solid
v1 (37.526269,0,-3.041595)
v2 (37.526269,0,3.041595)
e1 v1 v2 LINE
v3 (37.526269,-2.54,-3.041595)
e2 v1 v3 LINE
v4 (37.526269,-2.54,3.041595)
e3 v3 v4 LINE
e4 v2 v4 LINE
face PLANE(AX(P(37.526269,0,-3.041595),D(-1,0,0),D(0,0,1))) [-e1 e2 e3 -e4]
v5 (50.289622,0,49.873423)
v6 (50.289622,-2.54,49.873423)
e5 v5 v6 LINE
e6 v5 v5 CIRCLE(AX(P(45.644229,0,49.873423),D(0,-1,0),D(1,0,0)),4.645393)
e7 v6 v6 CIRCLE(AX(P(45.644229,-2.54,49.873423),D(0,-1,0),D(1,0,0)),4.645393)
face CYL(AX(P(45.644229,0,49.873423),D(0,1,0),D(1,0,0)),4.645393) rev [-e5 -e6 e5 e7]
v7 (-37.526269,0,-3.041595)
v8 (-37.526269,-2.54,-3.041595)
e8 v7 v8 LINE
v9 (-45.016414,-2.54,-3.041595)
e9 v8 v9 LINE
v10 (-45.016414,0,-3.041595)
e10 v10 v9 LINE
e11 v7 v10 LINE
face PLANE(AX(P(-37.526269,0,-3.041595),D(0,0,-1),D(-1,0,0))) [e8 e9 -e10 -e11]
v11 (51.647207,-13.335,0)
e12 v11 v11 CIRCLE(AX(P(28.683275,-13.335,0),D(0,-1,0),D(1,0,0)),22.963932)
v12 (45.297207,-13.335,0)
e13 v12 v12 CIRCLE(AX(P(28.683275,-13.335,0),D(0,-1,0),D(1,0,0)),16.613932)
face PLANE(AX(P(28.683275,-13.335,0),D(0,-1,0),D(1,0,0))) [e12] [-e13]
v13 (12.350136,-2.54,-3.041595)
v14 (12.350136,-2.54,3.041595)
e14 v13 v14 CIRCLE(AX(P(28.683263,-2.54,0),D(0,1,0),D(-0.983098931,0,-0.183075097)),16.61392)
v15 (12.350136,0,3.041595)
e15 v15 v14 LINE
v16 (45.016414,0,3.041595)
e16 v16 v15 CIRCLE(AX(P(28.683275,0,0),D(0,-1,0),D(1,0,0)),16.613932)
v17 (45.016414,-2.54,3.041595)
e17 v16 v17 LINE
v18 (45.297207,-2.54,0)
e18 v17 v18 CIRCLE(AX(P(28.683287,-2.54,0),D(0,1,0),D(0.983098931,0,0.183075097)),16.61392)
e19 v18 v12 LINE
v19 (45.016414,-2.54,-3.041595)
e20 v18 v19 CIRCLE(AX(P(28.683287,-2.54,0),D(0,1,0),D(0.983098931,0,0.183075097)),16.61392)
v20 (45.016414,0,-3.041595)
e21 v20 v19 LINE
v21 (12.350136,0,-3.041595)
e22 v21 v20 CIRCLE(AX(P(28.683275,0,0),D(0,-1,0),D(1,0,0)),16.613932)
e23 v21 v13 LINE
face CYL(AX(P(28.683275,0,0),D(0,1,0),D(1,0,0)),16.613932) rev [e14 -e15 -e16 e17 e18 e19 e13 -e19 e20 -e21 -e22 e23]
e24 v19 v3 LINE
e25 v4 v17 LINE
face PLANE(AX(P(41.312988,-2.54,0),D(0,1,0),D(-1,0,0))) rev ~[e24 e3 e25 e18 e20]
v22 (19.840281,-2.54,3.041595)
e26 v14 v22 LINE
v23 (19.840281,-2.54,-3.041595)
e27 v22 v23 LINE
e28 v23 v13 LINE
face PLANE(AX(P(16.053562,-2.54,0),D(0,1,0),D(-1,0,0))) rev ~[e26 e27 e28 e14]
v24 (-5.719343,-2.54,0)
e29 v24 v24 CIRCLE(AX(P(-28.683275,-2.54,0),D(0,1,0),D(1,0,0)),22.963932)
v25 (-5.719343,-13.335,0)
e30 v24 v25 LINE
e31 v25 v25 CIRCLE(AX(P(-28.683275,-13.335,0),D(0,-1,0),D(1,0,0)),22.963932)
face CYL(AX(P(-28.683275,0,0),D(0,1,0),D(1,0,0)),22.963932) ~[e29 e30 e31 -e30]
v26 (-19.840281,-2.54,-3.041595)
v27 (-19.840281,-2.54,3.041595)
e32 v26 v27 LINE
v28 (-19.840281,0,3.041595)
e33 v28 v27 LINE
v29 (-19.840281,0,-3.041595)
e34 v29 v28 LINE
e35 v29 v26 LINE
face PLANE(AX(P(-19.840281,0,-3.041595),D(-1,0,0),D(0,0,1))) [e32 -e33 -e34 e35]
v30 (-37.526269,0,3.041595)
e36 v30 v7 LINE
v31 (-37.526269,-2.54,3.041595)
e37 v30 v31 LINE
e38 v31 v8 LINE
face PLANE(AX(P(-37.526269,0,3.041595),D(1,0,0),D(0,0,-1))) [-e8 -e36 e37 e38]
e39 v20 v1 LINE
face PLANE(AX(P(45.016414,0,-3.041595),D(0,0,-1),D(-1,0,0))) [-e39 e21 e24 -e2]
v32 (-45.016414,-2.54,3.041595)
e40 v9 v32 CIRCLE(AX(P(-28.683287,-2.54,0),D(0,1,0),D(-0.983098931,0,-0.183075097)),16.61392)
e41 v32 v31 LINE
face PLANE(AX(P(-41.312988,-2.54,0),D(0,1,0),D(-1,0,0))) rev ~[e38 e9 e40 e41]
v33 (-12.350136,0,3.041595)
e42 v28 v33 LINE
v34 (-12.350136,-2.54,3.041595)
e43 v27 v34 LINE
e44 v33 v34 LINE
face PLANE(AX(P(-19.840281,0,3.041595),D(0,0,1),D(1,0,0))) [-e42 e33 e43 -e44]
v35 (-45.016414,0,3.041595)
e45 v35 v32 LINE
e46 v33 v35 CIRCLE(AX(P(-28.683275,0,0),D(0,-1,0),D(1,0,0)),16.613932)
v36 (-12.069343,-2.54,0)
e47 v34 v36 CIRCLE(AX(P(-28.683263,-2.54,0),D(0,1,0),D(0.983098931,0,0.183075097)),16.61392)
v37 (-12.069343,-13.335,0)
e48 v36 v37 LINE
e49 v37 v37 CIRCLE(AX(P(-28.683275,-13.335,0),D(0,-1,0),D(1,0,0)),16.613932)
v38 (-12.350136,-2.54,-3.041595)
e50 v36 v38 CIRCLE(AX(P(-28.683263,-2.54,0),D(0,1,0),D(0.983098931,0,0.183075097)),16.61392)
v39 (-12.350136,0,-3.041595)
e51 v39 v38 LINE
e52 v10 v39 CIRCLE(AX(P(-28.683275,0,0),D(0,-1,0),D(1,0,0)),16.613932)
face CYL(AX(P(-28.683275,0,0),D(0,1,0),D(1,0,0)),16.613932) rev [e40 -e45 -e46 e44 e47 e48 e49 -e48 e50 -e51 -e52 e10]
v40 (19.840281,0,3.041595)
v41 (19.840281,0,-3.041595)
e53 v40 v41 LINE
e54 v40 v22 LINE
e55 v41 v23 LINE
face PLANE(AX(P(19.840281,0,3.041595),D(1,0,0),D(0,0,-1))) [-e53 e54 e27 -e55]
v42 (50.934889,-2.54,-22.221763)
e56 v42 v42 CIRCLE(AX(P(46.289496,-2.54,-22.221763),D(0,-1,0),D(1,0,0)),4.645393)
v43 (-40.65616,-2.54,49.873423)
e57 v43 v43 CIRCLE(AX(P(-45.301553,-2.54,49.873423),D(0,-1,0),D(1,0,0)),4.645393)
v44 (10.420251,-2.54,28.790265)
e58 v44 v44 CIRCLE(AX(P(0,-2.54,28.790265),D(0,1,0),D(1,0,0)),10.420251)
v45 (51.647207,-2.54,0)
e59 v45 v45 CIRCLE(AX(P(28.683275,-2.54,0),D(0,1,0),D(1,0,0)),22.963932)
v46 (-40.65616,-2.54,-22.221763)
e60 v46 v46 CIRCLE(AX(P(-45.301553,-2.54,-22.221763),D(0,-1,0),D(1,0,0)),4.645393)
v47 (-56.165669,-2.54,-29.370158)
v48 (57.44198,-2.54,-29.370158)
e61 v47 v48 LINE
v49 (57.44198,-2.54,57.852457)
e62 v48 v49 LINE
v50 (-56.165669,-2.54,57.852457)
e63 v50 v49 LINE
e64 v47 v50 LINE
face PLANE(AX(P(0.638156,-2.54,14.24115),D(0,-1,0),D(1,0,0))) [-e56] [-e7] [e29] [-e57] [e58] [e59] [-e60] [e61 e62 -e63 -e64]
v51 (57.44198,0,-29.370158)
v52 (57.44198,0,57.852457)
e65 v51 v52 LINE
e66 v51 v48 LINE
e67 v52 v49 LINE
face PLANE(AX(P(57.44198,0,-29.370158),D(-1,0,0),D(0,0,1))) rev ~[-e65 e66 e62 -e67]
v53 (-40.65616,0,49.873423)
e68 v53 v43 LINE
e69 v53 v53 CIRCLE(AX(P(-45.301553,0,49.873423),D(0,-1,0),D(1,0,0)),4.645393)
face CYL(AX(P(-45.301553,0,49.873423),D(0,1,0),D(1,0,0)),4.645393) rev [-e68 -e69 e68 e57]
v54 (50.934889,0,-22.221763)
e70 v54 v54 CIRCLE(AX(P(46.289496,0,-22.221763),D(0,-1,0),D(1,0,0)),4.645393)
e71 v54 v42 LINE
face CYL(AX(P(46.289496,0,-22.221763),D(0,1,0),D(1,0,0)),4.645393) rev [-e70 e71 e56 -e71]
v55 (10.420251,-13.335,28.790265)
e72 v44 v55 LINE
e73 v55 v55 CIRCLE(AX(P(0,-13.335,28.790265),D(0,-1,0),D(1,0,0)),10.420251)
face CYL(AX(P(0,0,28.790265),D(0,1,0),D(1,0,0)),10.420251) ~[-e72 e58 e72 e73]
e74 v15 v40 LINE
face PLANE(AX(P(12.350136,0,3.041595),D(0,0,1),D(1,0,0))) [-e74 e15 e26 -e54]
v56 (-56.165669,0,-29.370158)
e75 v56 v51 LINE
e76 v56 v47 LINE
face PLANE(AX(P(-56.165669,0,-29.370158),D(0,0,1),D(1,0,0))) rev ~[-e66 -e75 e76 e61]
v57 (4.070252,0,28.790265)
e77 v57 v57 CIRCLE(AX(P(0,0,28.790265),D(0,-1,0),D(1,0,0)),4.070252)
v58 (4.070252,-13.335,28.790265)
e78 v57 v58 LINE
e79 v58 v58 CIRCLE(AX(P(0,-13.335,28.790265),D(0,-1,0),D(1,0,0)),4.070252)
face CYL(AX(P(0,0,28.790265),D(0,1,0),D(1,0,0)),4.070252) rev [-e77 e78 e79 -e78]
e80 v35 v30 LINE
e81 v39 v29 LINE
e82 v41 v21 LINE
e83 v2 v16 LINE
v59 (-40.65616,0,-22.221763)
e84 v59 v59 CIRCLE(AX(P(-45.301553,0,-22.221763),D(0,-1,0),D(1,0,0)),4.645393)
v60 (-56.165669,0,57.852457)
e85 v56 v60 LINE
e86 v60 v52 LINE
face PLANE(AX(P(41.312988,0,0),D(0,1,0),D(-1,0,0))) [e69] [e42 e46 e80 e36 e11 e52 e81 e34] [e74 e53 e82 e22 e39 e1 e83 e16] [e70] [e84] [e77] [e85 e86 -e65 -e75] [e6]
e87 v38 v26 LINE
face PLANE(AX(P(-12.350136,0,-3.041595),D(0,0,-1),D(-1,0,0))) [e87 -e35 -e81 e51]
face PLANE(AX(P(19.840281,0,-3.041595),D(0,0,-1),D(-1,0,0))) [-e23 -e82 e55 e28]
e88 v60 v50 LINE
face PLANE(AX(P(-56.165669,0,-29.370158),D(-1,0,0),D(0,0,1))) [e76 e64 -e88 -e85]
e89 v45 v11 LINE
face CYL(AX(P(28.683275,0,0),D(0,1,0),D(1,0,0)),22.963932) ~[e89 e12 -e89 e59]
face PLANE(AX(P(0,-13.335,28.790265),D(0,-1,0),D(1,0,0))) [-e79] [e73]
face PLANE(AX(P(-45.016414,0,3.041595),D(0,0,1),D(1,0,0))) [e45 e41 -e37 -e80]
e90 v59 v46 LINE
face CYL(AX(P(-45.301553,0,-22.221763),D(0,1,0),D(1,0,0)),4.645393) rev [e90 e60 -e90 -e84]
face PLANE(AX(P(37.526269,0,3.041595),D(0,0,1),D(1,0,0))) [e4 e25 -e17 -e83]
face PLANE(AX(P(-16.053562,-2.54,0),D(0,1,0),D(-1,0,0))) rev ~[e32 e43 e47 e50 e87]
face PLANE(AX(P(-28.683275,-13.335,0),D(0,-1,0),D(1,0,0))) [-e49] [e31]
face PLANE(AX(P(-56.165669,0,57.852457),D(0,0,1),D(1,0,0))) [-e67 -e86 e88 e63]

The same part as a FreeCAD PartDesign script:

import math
import FreeCAD as App
import Part
import Sketcher
from FreeCAD import Vector
Q = App.Units.Quantity


def add_polygon(sketch, points):
    """Adds a closed chain of lines whose ends are joined by coincident constraints."""
    first, n = sketch.GeometryCount, len(points)
    for a, b in zip(points, points[1:] + points[:1]):
        sketch.addGeometry(Part.LineSegment(App.Vector(*a, 0), App.Vector(*b, 0)), False)
    for i in range(n):
        sketch.addConstraint(Sketcher.Constraint("Coincident", first + i, 2, first + (i + 1) % n, 1))

doc = App.newDocument("Part")
params = doc.addObject("Spreadsheet::Sheet", "Params")
for row, (alias, value) in enumerate([
    ("pad1_length", "0.1 in"),
    ("pad2_length", "0.525 in"),
    ("pad3_length", "0.1 in"),
], start=1):
    params.set(f"A{row}", alias)
    params.set(f"B{row}", "=" + value)
    params.setAlias(f"B{row}", alias)

body = doc.addObject("PartDesign::Body", "Body")

# Sketch on XZ plane
sketch1 = doc.addObject("Sketcher::SketchObject", "Sketch")
body.addObject(sketch1)
sketch1.AttachmentSupport = (doc.XZ_Plane, [""])
sketch1.MapMode = "FlatFace"
add_polygon(sketch1, [(-56.2, 57.9), (-56.2, -29.4), (57.4, -29.4), (57.4, 57.9)])  # lines 0-3
sketch1.addGeometry(Part.Circle(Vector(-45.3, -22.2, 0), Vector(0, 0, 1), 4.6), False)  # 4
sketch1.addGeometry(Part.Circle(Vector(-28.7, 0, 0), Vector(0, 0, 1), 16.6), False)  # 5
sketch1.addGeometry(Part.Circle(Vector(46.3, -22.2, 0), Vector(0, 0, 1), 4.6), False)  # 6
sketch1.addGeometry(Part.Circle(Vector(28.7, 0, 0), Vector(0, 0, 1), 16.6), False)  # 7
sketch1.addGeometry(Part.Circle(Vector(0, 28.8, 0), Vector(0, 0, 1), 4.1), False)  # 8
sketch1.addGeometry(Part.Circle(Vector(-45.3, 49.9, 0), Vector(0, 0, 1), 4.6), False)  # 9
sketch1.addGeometry(Part.Circle(Vector(45.6, 49.9, 0), Vector(0, 0, 1), 4.6), False)  # 10
sketch1.addConstraint(Sketcher.Constraint("Vertical", 0))
sketch1.addConstraint(Sketcher.Constraint("Horizontal", 1))
sketch1.addConstraint(Sketcher.Constraint("Vertical", 2))
sketch1.addConstraint(Sketcher.Constraint("Horizontal", 3))
sketch1.addConstraint(Sketcher.Constraint("Equal", 4, 6))
sketch1.addConstraint(Sketcher.Constraint("Equal", 5, 7))
sketch1.addConstraint(Sketcher.Constraint("Equal", 6, 9))
sketch1.addConstraint(Sketcher.Constraint("Equal", 9, 10))
sketch1.addConstraint(Sketcher.Constraint("Symmetric", 5, 3, 7, 3, -1, 1))
sketch1.addConstraint(Sketcher.Constraint("PointOnObject", 5, 3, -1))
sketch1.addConstraint(Sketcher.Constraint("PointOnObject", 8, 3, -2))
sketch1.addConstraint(Sketcher.Constraint("Horizontal", 4, 3, 6, 3))
sketch1.addConstraint(Sketcher.Constraint("Horizontal", 9, 3, 10, 3))
sketch1.addConstraint(Sketcher.Constraint("Vertical", 4, 3, 9, 3))
sketch1.addConstraint(Sketcher.Constraint("Diameter", 4, Q("9.290786 mm")))
sketch1.addConstraint(Sketcher.Constraint("Diameter", 5, Q("33.227864 mm")))
sketch1.addConstraint(Sketcher.Constraint("Diameter", 8, Q("8.140504 mm")))
sketch1.addConstraint(Sketcher.Constraint("DistanceX", 1, 1, 1, 2, Q("113.607649 mm")))
sketch1.addConstraint(Sketcher.Constraint("DistanceY", 0, 2, 0, 1, Q("87.222615 mm")))
sketch1.addConstraint(Sketcher.Constraint("DistanceX", -1, 1, 10, 3, Q("45.644229 mm")))
sketch1.addConstraint(Sketcher.Constraint("DistanceX", 0, 2, -1, 1, Q("56.165669 mm")))
sketch1.addConstraint(Sketcher.Constraint("DistanceX", 4, 3, 5, 3, Q("16.618278 mm")))
sketch1.addConstraint(Sketcher.Constraint("DistanceX", 5, 3, 6, 3, Q("74.972771 mm")))
sketch1.addConstraint(Sketcher.Constraint("DistanceX", 7, 3, 6, 3, Q("17.606221 mm")))
sketch1.addConstraint(Sketcher.Constraint("DistanceY", 8, 3, 9, 3, Q("21.083158 mm")))
sketch1.addConstraint(Sketcher.Constraint("DistanceY", 0, 2, 9, 3, Q("79.243581 mm")))
sketch1.addConstraint(Sketcher.Constraint("DistanceY", 6, 3, 2, 2, Q("80.07422 mm")))
sketch1.addConstraint(Sketcher.Constraint("DistanceY", 4, 3, -1, 1, Q("22.221763 mm")))
pad1 = doc.addObject("PartDesign::Pad", "Pad")
body.addObject(pad1)
pad1.Profile = sketch1
pad1.setExpression("Length", "Params.pad1_length")

# Sketch on XZ plane
sketch2 = doc.addObject("Sketcher::SketchObject", "Sketch001")
body.addObject(sketch2)
sketch2.AttachmentSupport = (doc.XZ_Plane, [""])
sketch2.MapMode = "FlatFace"
sketch2.addGeometry(Part.Circle(Vector(0, 28.8, 0), Vector(0, 0, 1), 10.4), False)
sketch2.addGeometry(Part.Circle(Vector(0, 28.8, 0), Vector(0, 0, 1), 4.1), False)
sketch2.addGeometry(Part.Circle(Vector(28.7, 0, 0), Vector(0, 0, 1), 23), False)
sketch2.addGeometry(Part.Circle(Vector(28.7, 0, 0), Vector(0, 0, 1), 16.6), False)
sketch2.addGeometry(Part.Circle(Vector(-28.7, 0, 0), Vector(0, 0, 1), 23), False)
sketch2.addGeometry(Part.Circle(Vector(-28.7, 0, 0), Vector(0, 0, 1), 16.6), False)
sketch2.addConstraint(Sketcher.Constraint("Coincident", 1, 3, 0, 3))
sketch2.addConstraint(Sketcher.Constraint("Coincident", 3, 3, 2, 3))
sketch2.addConstraint(Sketcher.Constraint("Coincident", 5, 3, 4, 3))
sketch2.addConstraint(Sketcher.Constraint("Equal", 2, 4))
sketch2.addConstraint(Sketcher.Constraint("Equal", 3, 5))
sketch2.addConstraint(Sketcher.Constraint("Symmetric", 2, 3, 4, 3, -1, 1))
sketch2.addConstraint(Sketcher.Constraint("PointOnObject", 0, 3, -2))
sketch2.addConstraint(Sketcher.Constraint("PointOnObject", 2, 3, -1))
sketch2.addConstraint(Sketcher.Constraint("Diameter", 0, Q("20.840502 mm")))
sketch2.addConstraint(Sketcher.Constraint("Diameter", 1, Q("8.140504 mm")))
sketch2.addConstraint(Sketcher.Constraint("Diameter", 2, Q("45.927864 mm")))
sketch2.addConstraint(Sketcher.Constraint("Diameter", 3, Q("33.227864 mm")))
sketch2.addConstraint(Sketcher.Constraint("DistanceX", 4, 3, 2, 3, Q("57.36655 mm")))
sketch2.addConstraint(Sketcher.Constraint("DistanceY", -1, 1, 0, 3, Q("28.790265 mm")))
pad2 = doc.addObject("PartDesign::Pad", "Pad001")
body.addObject(pad2)
pad2.Profile = sketch2
pad2.setExpression("Length", "Params.pad2_length")

# Sketch on XZ plane
sketch3 = doc.addObject("Sketcher::SketchObject", "Sketch002")
body.addObject(sketch3)
sketch3.AttachmentSupport = (doc.XZ_Plane, [""])
sketch3.MapMode = "FlatFace"
sketch3.addGeometry(Part.LineSegment(Vector(12, 3, 0), Vector(20, 3, 0)), False)
sketch3.addGeometry(Part.LineSegment(Vector(20, 3, 0), Vector(20, -3, 0)), False)
sketch3.addGeometry(Part.LineSegment(Vector(20, -3, 0), Vector(12, -3, 0)), False)
sketch3.addGeometry(Part.ArcOfCircle(Part.Circle(Vector(29, 0, 0), Vector(0, 0, 1), 17), math.radians(169), math.radians(191)), False)
sketch3.addGeometry(Part.LineSegment(Vector(38, -3, 0), Vector(38, 3, 0)), False)
sketch3.addGeometry(Part.LineSegment(Vector(38, 3, 0), Vector(45, 3, 0)), False)
sketch3.addGeometry(Part.ArcOfCircle(Part.Circle(Vector(29, 0, 0), Vector(0, 0, 1), 17), math.radians(-11), math.radians(11)), False)
sketch3.addGeometry(Part.LineSegment(Vector(45, -3, 0), Vector(38, -3, 0)), False)
sketch3.addGeometry(Part.LineSegment(Vector(-45, 3, 0), Vector(-38, 3, 0)), False)
sketch3.addGeometry(Part.LineSegment(Vector(-38, 3, 0), Vector(-38, -3, 0)), False)
sketch3.addGeometry(Part.LineSegment(Vector(-38, -3, 0), Vector(-45, -3, 0)), False)
sketch3.addGeometry(Part.ArcOfCircle(Part.Circle(Vector(-29, 0, 0), Vector(0, 0, 1), 17), math.radians(169), math.radians(191)), False)
sketch3.addGeometry(Part.ArcOfCircle(Part.Circle(Vector(-29, 0, 0), Vector(0, 0, 1), 17), math.radians(-11), math.radians(11)), False)
sketch3.addGeometry(Part.LineSegment(Vector(-12, -3, 0), Vector(-20, -3, 0)), False)
sketch3.addGeometry(Part.LineSegment(Vector(-20, -3, 0), Vector(-20, 3, 0)), False)
sketch3.addGeometry(Part.LineSegment(Vector(-20, 3, 0), Vector(-12, 3, 0)), False)
sketch3.addConstraint(Sketcher.Constraint("Coincident", 0, 2, 1, 1))
sketch3.addConstraint(Sketcher.Constraint("Coincident", 1, 2, 2, 1))
sketch3.addConstraint(Sketcher.Constraint("Coincident", 2, 2, 3, 2))
sketch3.addConstraint(Sketcher.Constraint("Coincident", 3, 1, 0, 1))
sketch3.addConstraint(Sketcher.Constraint("Coincident", 4, 2, 5, 1))
sketch3.addConstraint(Sketcher.Constraint("Coincident", 5, 2, 6, 2))
sketch3.addConstraint(Sketcher.Constraint("Coincident", 6, 1, 7, 1))
sketch3.addConstraint(Sketcher.Constraint("Coincident", 7, 2, 4, 1))
sketch3.addConstraint(Sketcher.Constraint("Coincident", 8, 2, 9, 1))
sketch3.addConstraint(Sketcher.Constraint("Coincident", 9, 2, 10, 1))
sketch3.addConstraint(Sketcher.Constraint("Coincident", 10, 2, 11, 2))
sketch3.addConstraint(Sketcher.Constraint("Coincident", 11, 1, 8, 1))
sketch3.addConstraint(Sketcher.Constraint("Coincident", 12, 1, 13, 1))
sketch3.addConstraint(Sketcher.Constraint("Coincident", 13, 2, 14, 1))
sketch3.addConstraint(Sketcher.Constraint("Coincident", 14, 2, 15, 1))
sketch3.addConstraint(Sketcher.Constraint("Coincident", 15, 2, 12, 2))
sketch3.addConstraint(Sketcher.Constraint("Horizontal", 0))
sketch3.addConstraint(Sketcher.Constraint("Vertical", 1))
sketch3.addConstraint(Sketcher.Constraint("Horizontal", 2))
sketch3.addConstraint(Sketcher.Constraint("Vertical", 4))
sketch3.addConstraint(Sketcher.Constraint("Horizontal", 5))
sketch3.addConstraint(Sketcher.Constraint("Horizontal", 7))
sketch3.addConstraint(Sketcher.Constraint("Horizontal", 8))
sketch3.addConstraint(Sketcher.Constraint("Vertical", 9))
sketch3.addConstraint(Sketcher.Constraint("Horizontal", 10))
sketch3.addConstraint(Sketcher.Constraint("Horizontal", 13))
sketch3.addConstraint(Sketcher.Constraint("Vertical", 14))
sketch3.addConstraint(Sketcher.Constraint("Horizontal", 15))
sketch3.addConstraint(Sketcher.Constraint("Equal", 3, 6))
sketch3.addConstraint(Sketcher.Constraint("Equal", 6, 11))
sketch3.addConstraint(Sketcher.Constraint("Equal", 11, 12))
sketch3.addConstraint(Sketcher.Constraint("Symmetric", 6, 3, 11, 3, -1, 1))
sketch3.addConstraint(Sketcher.Constraint("Symmetric", 3, 3, 12, 3, -1, 1))
sketch3.addConstraint(Sketcher.Constraint("Symmetric", 7, 2, 8, 2, -1, 1))
sketch3.addConstraint(Sketcher.Constraint("Symmetric", 0, 2, 13, 2, -1, 1))
sketch3.addConstraint(Sketcher.Constraint("Symmetric", 6, 1, 10, 2, -2))
sketch3.addConstraint(Sketcher.Constraint("Symmetric", 2, 2, 12, 1, -2))
sketch3.addConstraint(Sketcher.Constraint("Horizontal", 3, 1, 4, 2))
sketch3.addConstraint(Sketcher.Constraint("Horizontal", 2, 2, 6, 1))
sketch3.addConstraint(Sketcher.Constraint("Horizontal", 11, 1, 14, 2))
sketch3.addConstraint(Sketcher.Constraint("Equal", 2, 5))
sketch3.addConstraint(Sketcher.Constraint("Radius", 3, Q("16.61392 mm")))
sketch3.addConstraint(Sketcher.Constraint("DistanceY", 1, 2, 1, 1, Q("6.08319 mm")))
sketch3.addConstraint(Sketcher.Constraint("DistanceX", 12, 3, 2, 2, Q("41.033399 mm")))
sketch3.addConstraint(Sketcher.Constraint("DistanceX", 0, 1, 0, 2, Q("7.490145 mm")))
sketch3.addConstraint(Sketcher.Constraint("DistanceX", -1, 1, 4, 2, Q("37.526269 mm")))
pad3 = doc.addObject("PartDesign::Pad", "Pad002")
body.addObject(pad3)
pad3.Profile = sketch3
pad3.setExpression("Length", "Params.pad3_length")

doc.recompute()
